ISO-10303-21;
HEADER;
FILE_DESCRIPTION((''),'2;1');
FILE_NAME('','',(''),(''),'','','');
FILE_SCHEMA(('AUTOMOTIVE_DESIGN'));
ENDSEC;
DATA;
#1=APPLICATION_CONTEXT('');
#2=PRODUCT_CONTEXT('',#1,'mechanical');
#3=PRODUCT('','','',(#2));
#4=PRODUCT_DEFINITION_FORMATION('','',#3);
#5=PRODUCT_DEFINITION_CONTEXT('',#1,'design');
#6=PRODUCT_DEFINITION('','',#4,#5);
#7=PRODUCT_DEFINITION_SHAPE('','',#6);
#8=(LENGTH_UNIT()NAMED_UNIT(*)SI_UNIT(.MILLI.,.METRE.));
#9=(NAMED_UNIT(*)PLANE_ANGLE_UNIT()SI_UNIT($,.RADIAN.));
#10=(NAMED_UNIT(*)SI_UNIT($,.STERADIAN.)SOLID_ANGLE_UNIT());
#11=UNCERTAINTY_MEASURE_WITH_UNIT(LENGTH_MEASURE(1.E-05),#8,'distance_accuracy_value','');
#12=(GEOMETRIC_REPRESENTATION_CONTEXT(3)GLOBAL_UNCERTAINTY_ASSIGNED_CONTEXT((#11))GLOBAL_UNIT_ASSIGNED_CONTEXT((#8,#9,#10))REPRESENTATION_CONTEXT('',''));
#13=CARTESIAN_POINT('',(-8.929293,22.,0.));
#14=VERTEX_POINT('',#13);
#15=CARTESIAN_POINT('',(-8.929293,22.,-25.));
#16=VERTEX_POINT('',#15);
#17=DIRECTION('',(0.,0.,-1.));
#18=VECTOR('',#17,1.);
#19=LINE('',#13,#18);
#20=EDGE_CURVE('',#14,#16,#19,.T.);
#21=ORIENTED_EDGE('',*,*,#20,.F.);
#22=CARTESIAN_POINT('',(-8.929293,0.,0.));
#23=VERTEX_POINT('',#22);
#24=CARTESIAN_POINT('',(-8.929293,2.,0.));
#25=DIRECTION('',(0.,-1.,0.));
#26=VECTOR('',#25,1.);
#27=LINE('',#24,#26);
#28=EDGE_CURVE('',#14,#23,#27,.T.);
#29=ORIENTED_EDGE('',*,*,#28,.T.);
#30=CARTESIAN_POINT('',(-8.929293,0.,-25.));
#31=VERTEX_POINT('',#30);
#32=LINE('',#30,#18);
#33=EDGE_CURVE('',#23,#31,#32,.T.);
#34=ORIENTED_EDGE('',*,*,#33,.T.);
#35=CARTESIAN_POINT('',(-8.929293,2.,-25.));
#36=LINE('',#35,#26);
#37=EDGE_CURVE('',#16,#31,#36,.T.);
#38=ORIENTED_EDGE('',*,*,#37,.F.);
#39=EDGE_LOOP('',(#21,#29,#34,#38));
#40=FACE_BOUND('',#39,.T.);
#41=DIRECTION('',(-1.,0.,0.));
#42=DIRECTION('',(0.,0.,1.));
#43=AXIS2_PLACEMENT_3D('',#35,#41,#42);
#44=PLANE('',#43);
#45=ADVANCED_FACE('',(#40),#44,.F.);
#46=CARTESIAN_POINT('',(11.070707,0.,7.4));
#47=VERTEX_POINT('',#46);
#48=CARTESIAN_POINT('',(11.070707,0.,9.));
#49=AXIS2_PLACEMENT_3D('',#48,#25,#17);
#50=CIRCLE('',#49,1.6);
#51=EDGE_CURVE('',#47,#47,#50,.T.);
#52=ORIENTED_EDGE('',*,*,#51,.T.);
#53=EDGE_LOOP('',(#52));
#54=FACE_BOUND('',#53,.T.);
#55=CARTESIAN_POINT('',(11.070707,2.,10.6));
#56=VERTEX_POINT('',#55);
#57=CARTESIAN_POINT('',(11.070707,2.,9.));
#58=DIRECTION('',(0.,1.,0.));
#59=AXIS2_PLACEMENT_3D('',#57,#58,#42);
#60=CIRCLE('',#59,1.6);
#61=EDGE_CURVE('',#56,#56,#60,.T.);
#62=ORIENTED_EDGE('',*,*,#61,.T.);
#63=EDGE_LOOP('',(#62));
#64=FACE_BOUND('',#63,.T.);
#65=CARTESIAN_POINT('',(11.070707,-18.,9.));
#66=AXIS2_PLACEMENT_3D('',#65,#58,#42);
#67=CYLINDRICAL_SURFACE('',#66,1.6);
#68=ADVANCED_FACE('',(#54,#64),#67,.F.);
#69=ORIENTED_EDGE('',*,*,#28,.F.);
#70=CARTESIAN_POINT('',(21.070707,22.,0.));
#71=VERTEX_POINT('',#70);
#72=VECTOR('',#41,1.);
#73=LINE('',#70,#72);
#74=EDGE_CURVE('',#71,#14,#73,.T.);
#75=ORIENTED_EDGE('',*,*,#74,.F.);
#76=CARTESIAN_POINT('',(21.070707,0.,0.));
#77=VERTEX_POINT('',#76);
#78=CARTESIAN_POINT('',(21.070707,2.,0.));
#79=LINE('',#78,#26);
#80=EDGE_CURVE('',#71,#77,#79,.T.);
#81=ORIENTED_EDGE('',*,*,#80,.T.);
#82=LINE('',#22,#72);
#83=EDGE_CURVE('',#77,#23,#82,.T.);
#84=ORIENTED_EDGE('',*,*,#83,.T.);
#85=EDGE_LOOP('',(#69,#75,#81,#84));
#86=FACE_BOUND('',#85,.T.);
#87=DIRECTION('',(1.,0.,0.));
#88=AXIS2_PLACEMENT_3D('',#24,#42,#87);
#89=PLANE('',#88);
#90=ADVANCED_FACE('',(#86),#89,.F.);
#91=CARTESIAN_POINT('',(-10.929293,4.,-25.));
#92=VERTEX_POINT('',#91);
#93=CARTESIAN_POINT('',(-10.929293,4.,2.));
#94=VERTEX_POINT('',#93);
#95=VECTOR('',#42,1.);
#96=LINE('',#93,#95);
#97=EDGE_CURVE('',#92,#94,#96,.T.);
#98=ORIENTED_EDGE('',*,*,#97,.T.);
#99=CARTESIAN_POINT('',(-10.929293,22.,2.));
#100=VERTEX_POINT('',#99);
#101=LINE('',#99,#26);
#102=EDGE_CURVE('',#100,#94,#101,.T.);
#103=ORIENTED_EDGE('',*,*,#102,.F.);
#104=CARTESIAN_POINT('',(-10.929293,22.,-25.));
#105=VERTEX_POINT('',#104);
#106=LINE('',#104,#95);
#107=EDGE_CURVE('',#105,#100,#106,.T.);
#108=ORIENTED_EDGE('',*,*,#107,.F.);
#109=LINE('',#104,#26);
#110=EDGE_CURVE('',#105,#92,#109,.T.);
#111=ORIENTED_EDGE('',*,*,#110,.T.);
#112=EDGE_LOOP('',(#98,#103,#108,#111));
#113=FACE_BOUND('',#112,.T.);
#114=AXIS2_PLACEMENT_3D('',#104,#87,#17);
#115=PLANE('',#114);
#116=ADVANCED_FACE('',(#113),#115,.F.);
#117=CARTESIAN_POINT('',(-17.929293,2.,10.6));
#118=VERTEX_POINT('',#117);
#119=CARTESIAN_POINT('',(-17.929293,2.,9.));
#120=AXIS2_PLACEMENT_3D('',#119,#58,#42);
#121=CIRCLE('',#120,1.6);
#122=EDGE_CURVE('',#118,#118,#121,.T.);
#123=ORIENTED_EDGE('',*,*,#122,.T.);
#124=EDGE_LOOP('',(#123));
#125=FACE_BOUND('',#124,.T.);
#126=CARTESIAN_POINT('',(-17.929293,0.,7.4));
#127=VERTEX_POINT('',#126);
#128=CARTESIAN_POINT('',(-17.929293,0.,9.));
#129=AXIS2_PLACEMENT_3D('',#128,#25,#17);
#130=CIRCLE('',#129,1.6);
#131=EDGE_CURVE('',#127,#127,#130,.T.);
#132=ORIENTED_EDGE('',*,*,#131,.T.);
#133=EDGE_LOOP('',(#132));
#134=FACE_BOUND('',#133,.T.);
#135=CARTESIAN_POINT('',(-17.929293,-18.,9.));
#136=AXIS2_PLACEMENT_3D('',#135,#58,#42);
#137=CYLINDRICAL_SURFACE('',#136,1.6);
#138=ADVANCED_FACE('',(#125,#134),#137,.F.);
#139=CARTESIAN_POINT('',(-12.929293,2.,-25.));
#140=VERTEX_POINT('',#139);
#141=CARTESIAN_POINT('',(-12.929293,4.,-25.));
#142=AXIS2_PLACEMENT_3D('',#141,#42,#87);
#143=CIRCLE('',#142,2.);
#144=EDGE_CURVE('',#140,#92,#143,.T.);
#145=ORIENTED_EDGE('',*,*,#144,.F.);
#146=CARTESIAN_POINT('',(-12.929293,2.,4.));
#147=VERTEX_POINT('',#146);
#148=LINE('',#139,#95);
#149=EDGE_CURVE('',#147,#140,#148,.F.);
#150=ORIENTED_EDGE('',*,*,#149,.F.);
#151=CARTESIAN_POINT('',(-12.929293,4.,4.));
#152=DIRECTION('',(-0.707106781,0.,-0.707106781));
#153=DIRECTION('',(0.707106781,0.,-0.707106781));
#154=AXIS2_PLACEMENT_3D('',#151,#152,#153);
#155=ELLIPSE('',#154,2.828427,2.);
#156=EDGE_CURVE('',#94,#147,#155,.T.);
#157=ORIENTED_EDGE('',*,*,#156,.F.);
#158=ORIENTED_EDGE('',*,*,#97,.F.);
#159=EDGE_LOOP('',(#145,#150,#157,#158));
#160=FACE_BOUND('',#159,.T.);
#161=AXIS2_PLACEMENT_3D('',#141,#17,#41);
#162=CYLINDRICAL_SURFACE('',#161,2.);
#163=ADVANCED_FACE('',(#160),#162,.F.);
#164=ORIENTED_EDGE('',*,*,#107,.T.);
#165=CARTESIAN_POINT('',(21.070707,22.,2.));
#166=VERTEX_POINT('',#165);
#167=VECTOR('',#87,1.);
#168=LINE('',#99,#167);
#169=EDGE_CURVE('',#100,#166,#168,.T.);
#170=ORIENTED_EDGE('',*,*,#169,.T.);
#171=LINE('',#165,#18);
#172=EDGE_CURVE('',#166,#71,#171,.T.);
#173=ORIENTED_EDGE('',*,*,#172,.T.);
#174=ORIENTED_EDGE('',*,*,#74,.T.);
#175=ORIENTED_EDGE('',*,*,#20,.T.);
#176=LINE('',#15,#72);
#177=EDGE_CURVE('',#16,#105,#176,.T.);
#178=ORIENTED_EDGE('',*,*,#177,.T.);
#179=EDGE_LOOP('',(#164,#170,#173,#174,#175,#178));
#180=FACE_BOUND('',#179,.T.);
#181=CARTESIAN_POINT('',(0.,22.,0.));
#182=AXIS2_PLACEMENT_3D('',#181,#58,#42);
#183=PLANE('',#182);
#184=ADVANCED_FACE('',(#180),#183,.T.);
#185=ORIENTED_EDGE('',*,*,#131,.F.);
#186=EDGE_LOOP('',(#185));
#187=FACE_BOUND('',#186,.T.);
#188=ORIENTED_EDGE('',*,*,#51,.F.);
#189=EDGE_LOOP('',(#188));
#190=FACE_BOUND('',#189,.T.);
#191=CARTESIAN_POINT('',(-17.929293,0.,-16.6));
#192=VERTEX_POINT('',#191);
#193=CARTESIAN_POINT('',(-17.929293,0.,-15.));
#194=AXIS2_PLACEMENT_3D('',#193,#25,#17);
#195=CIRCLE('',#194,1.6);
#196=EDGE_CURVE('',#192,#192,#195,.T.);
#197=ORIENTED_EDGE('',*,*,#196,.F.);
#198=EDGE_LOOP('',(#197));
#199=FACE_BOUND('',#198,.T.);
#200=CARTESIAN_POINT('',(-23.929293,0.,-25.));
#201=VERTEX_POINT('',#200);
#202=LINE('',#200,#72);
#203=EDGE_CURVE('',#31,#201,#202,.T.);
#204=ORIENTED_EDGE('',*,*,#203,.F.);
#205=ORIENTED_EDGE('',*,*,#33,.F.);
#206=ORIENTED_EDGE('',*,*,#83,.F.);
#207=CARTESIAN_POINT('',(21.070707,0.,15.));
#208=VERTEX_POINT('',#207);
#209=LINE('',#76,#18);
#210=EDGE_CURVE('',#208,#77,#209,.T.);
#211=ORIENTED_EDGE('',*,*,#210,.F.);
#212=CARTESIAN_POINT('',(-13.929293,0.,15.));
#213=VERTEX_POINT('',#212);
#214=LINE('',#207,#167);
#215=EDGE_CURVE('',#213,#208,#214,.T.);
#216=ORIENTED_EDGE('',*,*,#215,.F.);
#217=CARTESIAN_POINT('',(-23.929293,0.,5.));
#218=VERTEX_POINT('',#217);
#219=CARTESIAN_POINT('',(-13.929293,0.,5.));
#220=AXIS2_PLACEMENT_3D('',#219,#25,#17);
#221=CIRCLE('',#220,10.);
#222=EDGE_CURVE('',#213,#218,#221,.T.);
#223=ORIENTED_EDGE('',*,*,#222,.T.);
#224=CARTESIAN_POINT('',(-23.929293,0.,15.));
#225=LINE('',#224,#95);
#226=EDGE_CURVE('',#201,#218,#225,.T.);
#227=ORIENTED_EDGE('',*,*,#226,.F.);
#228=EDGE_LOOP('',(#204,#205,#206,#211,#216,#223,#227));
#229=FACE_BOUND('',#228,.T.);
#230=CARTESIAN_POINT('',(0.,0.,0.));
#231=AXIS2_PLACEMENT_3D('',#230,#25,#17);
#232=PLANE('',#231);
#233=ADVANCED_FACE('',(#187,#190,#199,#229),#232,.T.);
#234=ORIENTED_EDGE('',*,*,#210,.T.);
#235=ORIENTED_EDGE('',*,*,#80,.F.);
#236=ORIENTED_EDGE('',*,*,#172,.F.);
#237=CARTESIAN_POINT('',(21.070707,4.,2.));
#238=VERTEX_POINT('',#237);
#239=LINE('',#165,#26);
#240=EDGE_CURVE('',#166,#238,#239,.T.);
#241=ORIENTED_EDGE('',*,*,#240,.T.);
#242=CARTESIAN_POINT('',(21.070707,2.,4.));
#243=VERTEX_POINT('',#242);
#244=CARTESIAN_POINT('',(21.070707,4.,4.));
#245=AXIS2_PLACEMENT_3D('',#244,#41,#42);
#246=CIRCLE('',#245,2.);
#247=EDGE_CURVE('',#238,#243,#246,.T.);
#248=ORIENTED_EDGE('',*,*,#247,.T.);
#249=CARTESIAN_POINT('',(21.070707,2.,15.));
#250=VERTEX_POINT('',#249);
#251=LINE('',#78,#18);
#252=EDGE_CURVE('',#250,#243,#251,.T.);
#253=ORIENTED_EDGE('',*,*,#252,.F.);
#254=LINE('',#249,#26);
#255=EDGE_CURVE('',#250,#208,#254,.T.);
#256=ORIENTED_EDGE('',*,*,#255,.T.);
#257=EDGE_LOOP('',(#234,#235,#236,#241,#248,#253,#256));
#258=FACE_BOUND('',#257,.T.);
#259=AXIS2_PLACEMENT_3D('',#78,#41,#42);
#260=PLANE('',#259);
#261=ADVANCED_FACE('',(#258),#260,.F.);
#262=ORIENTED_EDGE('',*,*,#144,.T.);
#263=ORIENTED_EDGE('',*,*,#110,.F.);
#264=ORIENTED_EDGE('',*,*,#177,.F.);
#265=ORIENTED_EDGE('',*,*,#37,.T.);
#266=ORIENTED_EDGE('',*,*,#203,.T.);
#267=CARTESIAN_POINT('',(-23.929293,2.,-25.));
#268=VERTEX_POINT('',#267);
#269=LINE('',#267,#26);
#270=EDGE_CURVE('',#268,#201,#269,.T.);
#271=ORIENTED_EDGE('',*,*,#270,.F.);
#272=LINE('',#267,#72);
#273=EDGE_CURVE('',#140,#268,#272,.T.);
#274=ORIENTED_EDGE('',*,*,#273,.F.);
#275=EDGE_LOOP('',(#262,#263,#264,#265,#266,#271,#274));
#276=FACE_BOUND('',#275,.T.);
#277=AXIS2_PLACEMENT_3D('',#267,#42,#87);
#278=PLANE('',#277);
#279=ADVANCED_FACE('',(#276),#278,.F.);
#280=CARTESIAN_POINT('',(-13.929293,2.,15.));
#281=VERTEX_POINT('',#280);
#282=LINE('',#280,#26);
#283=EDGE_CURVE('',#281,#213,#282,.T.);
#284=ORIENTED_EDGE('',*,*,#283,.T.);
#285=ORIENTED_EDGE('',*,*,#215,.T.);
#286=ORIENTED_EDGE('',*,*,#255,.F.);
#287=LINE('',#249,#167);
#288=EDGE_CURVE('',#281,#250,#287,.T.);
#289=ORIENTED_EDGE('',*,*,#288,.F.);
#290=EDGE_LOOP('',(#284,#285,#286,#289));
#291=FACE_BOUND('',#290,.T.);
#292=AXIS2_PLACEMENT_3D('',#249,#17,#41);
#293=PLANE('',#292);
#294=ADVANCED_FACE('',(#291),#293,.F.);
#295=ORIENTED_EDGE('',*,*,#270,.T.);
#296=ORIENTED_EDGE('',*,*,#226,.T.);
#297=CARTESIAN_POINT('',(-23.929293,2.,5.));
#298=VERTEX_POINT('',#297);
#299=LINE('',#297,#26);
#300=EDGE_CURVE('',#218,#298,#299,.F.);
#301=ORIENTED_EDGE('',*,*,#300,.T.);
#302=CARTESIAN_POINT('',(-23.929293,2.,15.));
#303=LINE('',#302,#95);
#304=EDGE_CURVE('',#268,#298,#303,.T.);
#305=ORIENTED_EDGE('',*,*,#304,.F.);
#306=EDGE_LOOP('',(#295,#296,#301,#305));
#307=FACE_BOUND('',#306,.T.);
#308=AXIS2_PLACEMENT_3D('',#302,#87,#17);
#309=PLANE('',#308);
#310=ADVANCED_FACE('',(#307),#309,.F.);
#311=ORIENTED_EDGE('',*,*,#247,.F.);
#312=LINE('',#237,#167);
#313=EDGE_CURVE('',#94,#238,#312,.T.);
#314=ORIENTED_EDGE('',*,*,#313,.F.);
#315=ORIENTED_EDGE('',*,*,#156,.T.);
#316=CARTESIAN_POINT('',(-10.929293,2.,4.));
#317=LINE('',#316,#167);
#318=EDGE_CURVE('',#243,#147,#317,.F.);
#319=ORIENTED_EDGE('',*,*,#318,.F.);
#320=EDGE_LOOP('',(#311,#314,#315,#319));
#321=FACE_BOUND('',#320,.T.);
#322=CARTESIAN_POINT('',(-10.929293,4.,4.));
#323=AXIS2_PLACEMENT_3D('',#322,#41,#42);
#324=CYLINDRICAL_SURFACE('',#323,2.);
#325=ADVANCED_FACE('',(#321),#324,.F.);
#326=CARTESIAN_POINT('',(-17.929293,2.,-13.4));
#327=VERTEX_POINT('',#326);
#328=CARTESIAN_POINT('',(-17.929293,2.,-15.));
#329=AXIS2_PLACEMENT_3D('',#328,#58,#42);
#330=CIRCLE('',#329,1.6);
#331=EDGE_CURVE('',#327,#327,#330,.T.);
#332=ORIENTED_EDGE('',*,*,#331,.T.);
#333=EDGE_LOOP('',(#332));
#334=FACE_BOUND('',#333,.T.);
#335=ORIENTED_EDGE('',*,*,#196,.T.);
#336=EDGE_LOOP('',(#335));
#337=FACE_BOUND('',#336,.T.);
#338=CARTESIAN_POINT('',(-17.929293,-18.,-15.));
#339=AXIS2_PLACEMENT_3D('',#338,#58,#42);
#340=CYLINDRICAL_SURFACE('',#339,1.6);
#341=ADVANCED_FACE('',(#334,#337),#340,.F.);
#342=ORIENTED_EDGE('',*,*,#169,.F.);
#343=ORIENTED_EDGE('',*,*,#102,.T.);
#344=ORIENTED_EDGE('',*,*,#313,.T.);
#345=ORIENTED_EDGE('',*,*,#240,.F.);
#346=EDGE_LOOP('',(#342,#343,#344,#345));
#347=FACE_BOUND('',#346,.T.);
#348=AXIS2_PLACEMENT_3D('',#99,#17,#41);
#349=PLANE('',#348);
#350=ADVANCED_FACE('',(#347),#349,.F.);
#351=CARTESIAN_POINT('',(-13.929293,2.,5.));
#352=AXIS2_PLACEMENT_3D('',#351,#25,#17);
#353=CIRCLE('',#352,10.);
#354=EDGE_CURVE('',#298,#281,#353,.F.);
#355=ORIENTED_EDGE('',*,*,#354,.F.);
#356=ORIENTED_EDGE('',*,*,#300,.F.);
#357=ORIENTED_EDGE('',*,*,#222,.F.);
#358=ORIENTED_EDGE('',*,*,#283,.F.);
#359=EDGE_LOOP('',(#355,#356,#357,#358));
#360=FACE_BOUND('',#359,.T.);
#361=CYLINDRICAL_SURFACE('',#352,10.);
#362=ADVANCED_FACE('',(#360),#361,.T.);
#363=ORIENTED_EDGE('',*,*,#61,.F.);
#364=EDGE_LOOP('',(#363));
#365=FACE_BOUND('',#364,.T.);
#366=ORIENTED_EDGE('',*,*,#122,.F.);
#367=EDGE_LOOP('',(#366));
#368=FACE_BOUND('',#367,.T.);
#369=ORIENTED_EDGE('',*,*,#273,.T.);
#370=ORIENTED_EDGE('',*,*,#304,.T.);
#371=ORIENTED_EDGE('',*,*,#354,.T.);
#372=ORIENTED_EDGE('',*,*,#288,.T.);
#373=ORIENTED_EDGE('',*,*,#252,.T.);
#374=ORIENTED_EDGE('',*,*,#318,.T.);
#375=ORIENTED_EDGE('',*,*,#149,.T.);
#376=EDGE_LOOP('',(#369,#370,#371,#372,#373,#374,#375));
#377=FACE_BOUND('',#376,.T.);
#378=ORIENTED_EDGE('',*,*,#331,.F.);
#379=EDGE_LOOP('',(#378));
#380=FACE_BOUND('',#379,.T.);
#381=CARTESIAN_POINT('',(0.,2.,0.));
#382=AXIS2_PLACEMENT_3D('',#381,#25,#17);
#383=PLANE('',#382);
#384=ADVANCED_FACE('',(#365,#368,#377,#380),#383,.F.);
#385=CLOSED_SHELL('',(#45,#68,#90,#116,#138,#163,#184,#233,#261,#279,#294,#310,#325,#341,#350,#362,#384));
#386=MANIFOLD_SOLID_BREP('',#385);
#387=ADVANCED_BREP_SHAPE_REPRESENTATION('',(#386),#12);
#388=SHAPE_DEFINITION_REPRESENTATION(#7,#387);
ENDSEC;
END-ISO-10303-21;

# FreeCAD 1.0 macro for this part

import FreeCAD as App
import Part
import Sketcher
Q = App.Units.Quantity


def edges_at(feature, points):
    """Names of the edges that pass closest to the given points."""
    edges = feature.Shape.Edges
    near = lambda p: min(range(len(edges)), key=lambda i: edges[i].distToShape(Part.Vertex(*p))[0])
    return sorted({f"Edge{near(p) + 1}" for p in points})

doc = App.newDocument("Part")
body = doc.addObject("PartDesign::Body", "Body")

sketch1 = body.newObject("Sketcher::SketchObject", "Sketch")
sketch1.AttachmentSupport = (doc.getObject("XZ_Plane"), [""])
sketch1.MapMode = "FlatFace"
sketch1.addGeometry([
    Part.LineSegment(App.Vector(-9, -25, 0), App.Vector(-24, -25, 0)),
    Part.LineSegment(App.Vector(-24, -25, 0), App.Vector(-24, 15, 0)),
    Part.LineSegment(App.Vector(-24, 15, 0), App.Vector(21, 15, 0)),
    Part.LineSegment(App.Vector(21, 15, 0), App.Vector(21, 0, 0)),
    Part.LineSegment(App.Vector(21, 0, 0), App.Vector(-9, 0, 0)),
    Part.LineSegment(App.Vector(-9, 0, 0), App.Vector(-9, -25, 0)),
], False)
sketch1.addConstraint([
    Sketcher.Constraint("Coincident", 0, 2, 1, 1),
    Sketcher.Constraint("Coincident", 1, 2, 2, 1),
    Sketcher.Constraint("Coincident", 2, 2, 3, 1),
    Sketcher.Constraint("Coincident", 3, 2, 4, 1),
    Sketcher.Constraint("Coincident", 4, 2, 5, 1),
    Sketcher.Constraint("Coincident", 5, 2, 0, 1),
    Sketcher.Constraint("Horizontal", 0),
    Sketcher.Constraint("Vertical", 1),
    Sketcher.Constraint("Horizontal", 2),
    Sketcher.Constraint("Vertical", 3),
    Sketcher.Constraint("Horizontal", 4),
    Sketcher.Constraint("Vertical", 5),
    Sketcher.Constraint("PointOnObject", 3, 2, -1),
    Sketcher.Constraint("Equal", 0, 3),
    Sketcher.Constraint("DistanceX", 0, 2, 0, 1, Q("15 mm")),
    Sketcher.Constraint("DistanceX", 2, 1, 2, 2, Q("45 mm")),
    Sketcher.Constraint("DistanceY", 1, 1, 1, 2, Q("40 mm")),
    Sketcher.Constraint("DistanceX", 0, 2, -1, 1, Q("23.929293 mm")),
])
pad1 = body.newObject("PartDesign::Pad", "Pad")
pad1.Profile = sketch1
pad1.Length = 2
pad1.Reversed = True

sketch2 = body.newObject("Sketcher::SketchObject", "Sketch001")
sketch2.AttachmentSupport = (doc.getObject("XZ_Plane"), [""])
sketch2.MapMode = "FlatFace"
sketch2.AttachmentOffset = App.Placement(App.Vector(0, 0, -2), App.Rotation())
sketch2.addGeometry([
    Part.LineSegment(App.Vector(-8.9, -25, 0), App.Vector(-10.9, -25, 0)),
    Part.LineSegment(App.Vector(-10.9, -25, 0), App.Vector(-10.9, 2, 0)),
    Part.LineSegment(App.Vector(-10.9, 2, 0), App.Vector(21.1, 2, 0)),
    Part.LineSegment(App.Vector(21.1, 2, 0), App.Vector(21.1, 0, 0)),
    Part.LineSegment(App.Vector(21.1, 0, 0), App.Vector(-8.9, 0, 0)),
    Part.LineSegment(App.Vector(-8.9, 0, 0), App.Vector(-8.9, -25, 0)),
], False)
sketch2.addConstraint([
    Sketcher.Constraint("Coincident", 0, 2, 1, 1),
    Sketcher.Constraint("Coincident", 1, 2, 2, 1),
    Sketcher.Constraint("Coincident", 2, 2, 3, 1),
    Sketcher.Constraint("Coincident", 3, 2, 4, 1),
    Sketcher.Constraint("Coincident", 4, 2, 5, 1),
    Sketcher.Constraint("Coincident", 5, 2, 0, 1),
    Sketcher.Constraint("Horizontal", 0),
    Sketcher.Constraint("Vertical", 1),
    Sketcher.Constraint("Horizontal", 2),
    Sketcher.Constraint("Vertical", 3),
    Sketcher.Constraint("Horizontal", 4),
    Sketcher.Constraint("Vertical", 5),
    Sketcher.Constraint("PointOnObject", 3, 2, -1),
    Sketcher.Constraint("Equal", 0, 3),
    Sketcher.Constraint("DistanceX", 0, 2, 0, 1, Q("2 mm")),
    Sketcher.Constraint("DistanceX", 2, 1, 2, 2, Q("32 mm")),
    Sketcher.Constraint("DistanceY", 1, 1, 1, 2, Q("27 mm")),
    Sketcher.Constraint("DistanceX", 0, 2, -1, 1, Q("10.929293 mm")),
])
pad2 = body.newObject("PartDesign::Pad", "Pad001")
pad2.Profile = sketch2
pad2.Length = 20
pad2.Reversed = True
doc.recompute()

fillet = body.newObject("PartDesign::Fillet", "Fillet")
fillet.Base = (pad2, edges_at(pad2, [(-10.929, 2, -11.5), (5.071, 2, 2)]))
fillet.Radius = 2
doc.recompute()

fillet2 = body.newObject("PartDesign::Fillet", "Fillet001")
fillet2.Base = (fillet, edges_at(fillet, [(-23.929, 1, 15)]))
fillet2.Radius = 10

sketch3 = body.newObject("Sketcher::SketchObject", "Sketch002")
sketch3.AttachmentSupport = (doc.getObject("XZ_Plane"), [""])
sketch3.MapMode = "FlatFace"
sketch3.AttachmentOffset = App.Placement(App.Vector(0, 0, -2), App.Rotation())
sketch3.addGeometry([
    Part.Circle(App.Vector(-17.9, -15, 0), App.Vector(0, 0, 1), 1.6),
    Part.Circle(App.Vector(11.1, 9, 0), App.Vector(0, 0, 1), 1.6),
    Part.Circle(App.Vector(-17.9, 9, 0), App.Vector(0, 0, 1), 1.6),
], False)
sketch3.addConstraint([
    Sketcher.Constraint("Equal", 0, 1),
    Sketcher.Constraint("Equal", 1, 2),
    Sketcher.Constraint("Horizontal", 1, 3, 2, 3),
    Sketcher.Constraint("Vertical", 0, 3, 2, 3),
    Sketcher.Constraint("Diameter", 0, Q("3.2 mm")),
    Sketcher.Constraint("DistanceY", 0, 3, -1, 1, Q("15 mm")),
    Sketcher.Constraint("DistanceY", -1, 1, 1, 3, Q("9 mm")),
    Sketcher.Constraint("DistanceX", 0, 3, 1, 3, Q("29 mm")),
    Sketcher.Constraint("DistanceX", 0, 3, -1, 1, Q("17.929293 mm")),
])
pocket1 = body.newObject("PartDesign::Pocket", "Pocket")
pocket1.Profile = sketch3
pocket1.Length = 20
pocket1.Reversed = True

doc.recompute()
